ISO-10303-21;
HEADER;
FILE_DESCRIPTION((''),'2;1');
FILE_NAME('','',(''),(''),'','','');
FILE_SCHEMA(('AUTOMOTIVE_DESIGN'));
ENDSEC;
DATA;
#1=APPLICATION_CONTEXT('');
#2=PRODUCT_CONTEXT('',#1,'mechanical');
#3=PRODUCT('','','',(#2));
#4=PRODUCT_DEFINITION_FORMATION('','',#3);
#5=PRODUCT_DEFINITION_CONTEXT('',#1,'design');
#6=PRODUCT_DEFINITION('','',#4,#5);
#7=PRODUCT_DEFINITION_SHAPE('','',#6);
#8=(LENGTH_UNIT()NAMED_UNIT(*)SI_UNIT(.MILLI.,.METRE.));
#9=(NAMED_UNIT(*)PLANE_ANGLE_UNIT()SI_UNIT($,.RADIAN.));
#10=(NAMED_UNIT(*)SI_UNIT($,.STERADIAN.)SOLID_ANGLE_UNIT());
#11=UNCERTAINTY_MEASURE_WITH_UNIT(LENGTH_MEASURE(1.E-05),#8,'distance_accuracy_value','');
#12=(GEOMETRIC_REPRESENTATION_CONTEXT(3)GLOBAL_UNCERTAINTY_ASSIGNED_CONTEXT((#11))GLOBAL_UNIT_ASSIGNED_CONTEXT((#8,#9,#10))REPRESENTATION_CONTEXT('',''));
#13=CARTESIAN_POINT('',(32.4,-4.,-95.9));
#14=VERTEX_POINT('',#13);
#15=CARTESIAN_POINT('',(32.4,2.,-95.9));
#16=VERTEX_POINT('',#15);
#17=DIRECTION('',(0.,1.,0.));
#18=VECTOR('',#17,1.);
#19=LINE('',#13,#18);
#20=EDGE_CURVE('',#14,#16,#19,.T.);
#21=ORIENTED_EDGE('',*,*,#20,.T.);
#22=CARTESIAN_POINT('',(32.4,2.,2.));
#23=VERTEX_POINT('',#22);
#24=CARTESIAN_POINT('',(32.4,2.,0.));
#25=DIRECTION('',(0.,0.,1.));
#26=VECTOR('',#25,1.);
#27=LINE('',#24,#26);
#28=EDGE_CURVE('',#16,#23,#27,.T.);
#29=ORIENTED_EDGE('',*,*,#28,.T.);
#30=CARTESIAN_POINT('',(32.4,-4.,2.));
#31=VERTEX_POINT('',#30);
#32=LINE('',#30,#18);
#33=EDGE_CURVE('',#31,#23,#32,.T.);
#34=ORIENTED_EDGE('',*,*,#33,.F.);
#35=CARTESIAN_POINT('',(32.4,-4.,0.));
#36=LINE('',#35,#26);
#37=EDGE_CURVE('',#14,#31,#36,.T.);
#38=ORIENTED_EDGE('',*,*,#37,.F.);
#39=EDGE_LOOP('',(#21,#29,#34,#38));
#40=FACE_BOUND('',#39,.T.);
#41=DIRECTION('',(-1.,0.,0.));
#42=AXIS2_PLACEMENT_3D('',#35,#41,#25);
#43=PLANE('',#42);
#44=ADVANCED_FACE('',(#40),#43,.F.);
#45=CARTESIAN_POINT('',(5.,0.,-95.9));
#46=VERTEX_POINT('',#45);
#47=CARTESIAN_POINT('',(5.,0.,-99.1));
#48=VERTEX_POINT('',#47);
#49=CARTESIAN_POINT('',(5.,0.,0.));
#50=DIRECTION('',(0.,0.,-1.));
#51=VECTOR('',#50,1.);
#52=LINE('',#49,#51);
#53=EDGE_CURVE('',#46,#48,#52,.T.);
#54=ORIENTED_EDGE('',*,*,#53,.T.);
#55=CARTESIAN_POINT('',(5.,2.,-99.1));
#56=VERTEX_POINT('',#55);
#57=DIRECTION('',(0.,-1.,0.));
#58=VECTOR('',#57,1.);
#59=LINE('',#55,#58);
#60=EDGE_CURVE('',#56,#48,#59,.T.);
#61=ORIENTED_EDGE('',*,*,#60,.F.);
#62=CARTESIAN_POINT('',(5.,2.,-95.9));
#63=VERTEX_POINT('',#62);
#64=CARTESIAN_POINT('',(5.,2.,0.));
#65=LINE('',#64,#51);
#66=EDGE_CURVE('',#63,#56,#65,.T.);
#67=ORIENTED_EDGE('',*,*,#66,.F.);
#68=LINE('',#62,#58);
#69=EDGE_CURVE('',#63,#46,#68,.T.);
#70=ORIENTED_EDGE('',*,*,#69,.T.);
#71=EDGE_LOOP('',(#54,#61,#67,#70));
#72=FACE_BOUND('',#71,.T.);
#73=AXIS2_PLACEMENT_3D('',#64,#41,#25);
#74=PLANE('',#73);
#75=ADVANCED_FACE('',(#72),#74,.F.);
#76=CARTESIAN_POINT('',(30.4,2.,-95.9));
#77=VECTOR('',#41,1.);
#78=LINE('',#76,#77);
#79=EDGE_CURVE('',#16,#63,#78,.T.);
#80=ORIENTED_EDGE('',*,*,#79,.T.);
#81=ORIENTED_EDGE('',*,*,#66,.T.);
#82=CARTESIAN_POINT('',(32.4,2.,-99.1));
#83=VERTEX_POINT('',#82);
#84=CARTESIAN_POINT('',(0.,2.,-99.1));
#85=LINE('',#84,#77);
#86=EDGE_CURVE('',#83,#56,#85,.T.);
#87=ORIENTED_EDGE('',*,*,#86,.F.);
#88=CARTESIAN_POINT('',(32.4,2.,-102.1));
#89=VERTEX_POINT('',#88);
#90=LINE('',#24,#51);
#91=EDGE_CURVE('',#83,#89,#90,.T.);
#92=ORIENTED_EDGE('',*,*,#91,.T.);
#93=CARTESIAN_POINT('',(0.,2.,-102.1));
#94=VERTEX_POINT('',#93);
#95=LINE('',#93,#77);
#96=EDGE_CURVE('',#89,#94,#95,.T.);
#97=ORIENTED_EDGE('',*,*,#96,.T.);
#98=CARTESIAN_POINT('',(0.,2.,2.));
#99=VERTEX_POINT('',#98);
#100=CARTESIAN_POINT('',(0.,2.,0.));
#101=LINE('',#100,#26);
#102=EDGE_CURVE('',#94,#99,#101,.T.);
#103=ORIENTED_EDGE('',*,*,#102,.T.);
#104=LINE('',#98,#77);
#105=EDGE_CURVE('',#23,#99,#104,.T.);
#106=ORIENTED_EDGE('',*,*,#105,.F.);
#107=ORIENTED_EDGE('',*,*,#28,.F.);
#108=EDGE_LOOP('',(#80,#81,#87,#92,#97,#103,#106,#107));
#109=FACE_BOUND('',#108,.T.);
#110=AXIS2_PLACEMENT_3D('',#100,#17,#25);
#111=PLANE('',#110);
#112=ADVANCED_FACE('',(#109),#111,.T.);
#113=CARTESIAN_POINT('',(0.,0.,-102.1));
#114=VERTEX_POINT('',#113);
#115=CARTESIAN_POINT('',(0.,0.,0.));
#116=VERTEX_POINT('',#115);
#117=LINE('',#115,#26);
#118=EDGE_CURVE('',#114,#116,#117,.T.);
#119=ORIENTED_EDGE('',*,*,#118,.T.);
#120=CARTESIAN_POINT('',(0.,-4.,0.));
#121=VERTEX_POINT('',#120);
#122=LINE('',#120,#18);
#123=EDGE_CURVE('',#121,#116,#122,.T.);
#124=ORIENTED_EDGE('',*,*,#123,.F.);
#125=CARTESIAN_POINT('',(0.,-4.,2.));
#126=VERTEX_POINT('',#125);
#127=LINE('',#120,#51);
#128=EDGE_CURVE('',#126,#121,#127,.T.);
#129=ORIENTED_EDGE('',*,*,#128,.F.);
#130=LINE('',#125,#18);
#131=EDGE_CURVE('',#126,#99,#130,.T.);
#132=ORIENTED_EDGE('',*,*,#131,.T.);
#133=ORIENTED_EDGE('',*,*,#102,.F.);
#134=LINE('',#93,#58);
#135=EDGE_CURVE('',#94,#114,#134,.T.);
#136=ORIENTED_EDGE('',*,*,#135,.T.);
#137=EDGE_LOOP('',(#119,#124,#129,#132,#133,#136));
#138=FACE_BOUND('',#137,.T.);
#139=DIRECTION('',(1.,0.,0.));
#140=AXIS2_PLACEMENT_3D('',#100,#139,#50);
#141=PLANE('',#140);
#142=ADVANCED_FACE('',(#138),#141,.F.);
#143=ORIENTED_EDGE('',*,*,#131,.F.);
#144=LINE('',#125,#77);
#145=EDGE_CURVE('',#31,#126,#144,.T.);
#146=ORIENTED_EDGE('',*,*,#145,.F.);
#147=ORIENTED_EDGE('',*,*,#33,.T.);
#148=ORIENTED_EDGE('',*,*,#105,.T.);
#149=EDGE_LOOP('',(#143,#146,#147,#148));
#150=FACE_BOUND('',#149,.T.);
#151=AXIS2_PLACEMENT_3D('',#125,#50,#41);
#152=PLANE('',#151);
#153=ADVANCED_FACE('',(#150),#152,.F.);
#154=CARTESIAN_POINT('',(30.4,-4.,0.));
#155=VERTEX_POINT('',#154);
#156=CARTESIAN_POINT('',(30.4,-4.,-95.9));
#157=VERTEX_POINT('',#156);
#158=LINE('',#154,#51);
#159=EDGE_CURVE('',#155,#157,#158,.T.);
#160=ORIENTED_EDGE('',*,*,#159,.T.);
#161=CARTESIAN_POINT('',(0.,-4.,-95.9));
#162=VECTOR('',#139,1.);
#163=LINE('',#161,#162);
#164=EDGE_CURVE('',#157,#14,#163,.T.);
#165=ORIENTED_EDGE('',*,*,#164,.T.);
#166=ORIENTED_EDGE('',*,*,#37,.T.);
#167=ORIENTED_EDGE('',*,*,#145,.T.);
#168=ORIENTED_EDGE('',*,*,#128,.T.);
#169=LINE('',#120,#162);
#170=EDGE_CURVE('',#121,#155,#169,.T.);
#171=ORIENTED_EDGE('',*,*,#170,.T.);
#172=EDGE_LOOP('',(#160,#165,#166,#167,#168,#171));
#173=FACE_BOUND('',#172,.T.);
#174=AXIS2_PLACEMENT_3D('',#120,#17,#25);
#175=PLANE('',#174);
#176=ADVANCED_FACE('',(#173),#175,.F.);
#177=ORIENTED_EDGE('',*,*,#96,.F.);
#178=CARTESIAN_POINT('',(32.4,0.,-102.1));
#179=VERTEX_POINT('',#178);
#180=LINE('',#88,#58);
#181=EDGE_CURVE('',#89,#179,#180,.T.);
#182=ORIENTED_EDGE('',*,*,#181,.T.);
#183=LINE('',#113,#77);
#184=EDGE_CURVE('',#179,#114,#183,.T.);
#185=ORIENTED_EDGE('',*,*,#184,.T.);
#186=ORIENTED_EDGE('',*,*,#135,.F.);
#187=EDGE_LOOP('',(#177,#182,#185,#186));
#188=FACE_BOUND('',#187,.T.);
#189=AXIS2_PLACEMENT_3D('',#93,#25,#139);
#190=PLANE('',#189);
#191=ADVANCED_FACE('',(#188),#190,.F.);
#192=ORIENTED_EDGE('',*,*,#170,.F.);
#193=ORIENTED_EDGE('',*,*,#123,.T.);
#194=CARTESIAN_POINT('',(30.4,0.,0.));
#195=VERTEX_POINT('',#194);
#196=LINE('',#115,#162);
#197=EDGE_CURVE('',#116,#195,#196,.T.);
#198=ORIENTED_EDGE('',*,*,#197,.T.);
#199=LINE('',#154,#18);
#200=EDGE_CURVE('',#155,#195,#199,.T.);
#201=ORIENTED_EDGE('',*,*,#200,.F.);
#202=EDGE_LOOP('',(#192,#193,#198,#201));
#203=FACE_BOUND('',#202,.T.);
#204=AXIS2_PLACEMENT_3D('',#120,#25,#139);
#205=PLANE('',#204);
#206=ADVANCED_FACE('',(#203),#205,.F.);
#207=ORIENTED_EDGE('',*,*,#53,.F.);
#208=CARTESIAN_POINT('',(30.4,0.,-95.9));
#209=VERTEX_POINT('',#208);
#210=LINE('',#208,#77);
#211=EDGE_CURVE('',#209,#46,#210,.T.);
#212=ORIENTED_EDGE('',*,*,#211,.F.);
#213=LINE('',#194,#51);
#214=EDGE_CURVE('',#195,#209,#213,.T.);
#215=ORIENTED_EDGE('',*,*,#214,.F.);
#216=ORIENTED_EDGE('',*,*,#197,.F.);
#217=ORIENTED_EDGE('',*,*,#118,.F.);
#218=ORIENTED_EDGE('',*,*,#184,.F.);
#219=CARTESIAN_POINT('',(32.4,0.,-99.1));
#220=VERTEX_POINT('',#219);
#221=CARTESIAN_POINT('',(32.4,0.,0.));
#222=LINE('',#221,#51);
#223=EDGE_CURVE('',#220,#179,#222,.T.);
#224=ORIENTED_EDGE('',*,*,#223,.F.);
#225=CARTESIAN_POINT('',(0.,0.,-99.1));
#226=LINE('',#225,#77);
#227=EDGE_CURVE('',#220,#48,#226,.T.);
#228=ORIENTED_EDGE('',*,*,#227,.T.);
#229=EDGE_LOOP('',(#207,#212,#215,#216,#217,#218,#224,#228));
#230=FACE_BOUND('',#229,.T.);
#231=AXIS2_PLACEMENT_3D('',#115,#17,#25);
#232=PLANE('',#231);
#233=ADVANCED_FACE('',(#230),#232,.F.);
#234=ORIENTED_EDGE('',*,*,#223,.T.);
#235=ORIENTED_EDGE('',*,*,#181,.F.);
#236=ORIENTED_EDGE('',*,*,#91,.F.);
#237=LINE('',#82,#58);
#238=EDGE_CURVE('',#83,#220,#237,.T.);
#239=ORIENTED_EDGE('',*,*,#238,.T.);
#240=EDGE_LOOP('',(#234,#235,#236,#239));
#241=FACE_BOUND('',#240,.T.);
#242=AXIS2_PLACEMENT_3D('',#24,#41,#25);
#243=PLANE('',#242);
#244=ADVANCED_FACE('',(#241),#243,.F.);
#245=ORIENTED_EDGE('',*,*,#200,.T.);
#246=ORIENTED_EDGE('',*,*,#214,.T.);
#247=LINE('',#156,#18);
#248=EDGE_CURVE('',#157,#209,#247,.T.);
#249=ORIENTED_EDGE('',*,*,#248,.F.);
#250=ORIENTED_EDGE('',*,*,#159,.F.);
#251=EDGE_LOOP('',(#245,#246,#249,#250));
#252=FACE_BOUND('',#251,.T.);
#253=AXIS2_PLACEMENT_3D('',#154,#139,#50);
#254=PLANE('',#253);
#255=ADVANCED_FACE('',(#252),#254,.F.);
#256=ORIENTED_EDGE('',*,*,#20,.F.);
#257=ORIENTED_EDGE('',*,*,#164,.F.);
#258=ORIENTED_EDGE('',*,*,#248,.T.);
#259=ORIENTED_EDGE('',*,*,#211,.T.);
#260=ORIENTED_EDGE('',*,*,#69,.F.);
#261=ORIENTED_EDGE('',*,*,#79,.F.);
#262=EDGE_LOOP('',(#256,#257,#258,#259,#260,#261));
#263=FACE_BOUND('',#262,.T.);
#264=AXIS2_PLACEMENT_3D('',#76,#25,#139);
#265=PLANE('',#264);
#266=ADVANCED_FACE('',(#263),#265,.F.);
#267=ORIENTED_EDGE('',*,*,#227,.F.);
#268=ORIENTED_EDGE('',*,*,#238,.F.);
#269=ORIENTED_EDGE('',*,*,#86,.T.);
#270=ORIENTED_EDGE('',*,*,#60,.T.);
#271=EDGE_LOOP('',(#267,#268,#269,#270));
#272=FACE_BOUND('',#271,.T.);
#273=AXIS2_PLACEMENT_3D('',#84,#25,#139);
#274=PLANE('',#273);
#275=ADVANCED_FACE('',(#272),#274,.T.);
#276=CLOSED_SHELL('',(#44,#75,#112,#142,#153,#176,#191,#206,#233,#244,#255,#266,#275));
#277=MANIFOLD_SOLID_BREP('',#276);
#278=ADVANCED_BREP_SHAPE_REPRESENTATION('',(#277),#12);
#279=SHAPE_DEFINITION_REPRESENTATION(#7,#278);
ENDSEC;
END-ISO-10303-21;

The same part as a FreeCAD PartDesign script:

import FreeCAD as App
import Part
import Sketcher
Q = App.Units.Quantity


def add_polygon(sketch, points):
    """Adds a closed chain of lines whose ends are joined by coincident constraints."""
    first, n = sketch.GeometryCount, len(points)
    for a, b in zip(points, points[1:] + points[:1]):
        sketch.addGeometry(Part.LineSegment(App.Vector(*a, 0), App.Vector(*b, 0)), False)
    for i in range(n):
        sketch.addConstraint(Sketcher.Constraint("Coincident", first + i, 2, first + (i + 1) % n, 1))

doc = App.newDocument("Part")
body = doc.addObject("PartDesign::Body", "Body")

sketch1 = doc.addObject("Sketcher::SketchObject", "Sketch")
body.addObject(sketch1)
sketch1.AttachmentSupport = (doc.XZ_Plane, [""])
sketch1.MapMode = "FlatFace"
add_polygon(sketch1, [(0, 0), (30, 0), (30, -96), (18, -96), (18, -16), (0, -16)])
sketch1.addConstraint([
    Sketcher.Constraint("Horizontal", 0),
    Sketcher.Constraint("Vertical", 1),
    Sketcher.Constraint("Horizontal", 2),
    Sketcher.Constraint("Vertical", 3),
    Sketcher.Constraint("Horizontal", 4),
    Sketcher.Constraint("Vertical", 5),
    Sketcher.Constraint("Coincident", 5, 2, -1, 1),
    Sketcher.Constraint("DistanceX", 0, 1, 0, 2, Q("30.4 mm")),
    Sketcher.Constraint("DistanceX", 2, 2, 2, 1, Q("12.2 mm")),
    Sketcher.Constraint("DistanceY", 1, 2, 1, 1, Q("95.9 mm")),
    Sketcher.Constraint("DistanceY", 3, 1, 3, 2, Q("80.2 mm")),
])
pad1 = doc.addObject("PartDesign::Pad", "Pad")
body.addObject(pad1)
pad1.Profile = sketch1
pad1.Length = 2
pad1.Reversed = True

sketch2 = doc.addObject("Sketcher::SketchObject", "Sketch001")
body.addObject(sketch2)
sketch2.AttachmentSupport = (doc.XZ_Plane, [""])
sketch2.MapMode = "FlatFace"
sketch2.AttachmentOffset = App.Placement(App.Vector(0, 0, -2), App.Rotation())
add_polygon(sketch2, [(0, 0), (0, 2), (32.4, 2), (32.4, -95.9), (30.4, -95.9), (30.4, 0)])
sketch2.addConstraint([
    Sketcher.Constraint("Vertical", 0),
    Sketcher.Constraint("Horizontal", 1),
    Sketcher.Constraint("Vertical", 2),
    Sketcher.Constraint("Horizontal", 3),
    Sketcher.Constraint("Vertical", 4),
    Sketcher.Constraint("Horizontal", 5),
    Sketcher.Constraint("Coincident", 5, 2, -1, 1),
    Sketcher.Constraint("Equal", 3, 0),
    Sketcher.Constraint("DistanceX", 3, 2, 3, 1, Q("2 mm")),
    Sketcher.Constraint("DistanceX", 1, 1, 1, 2, Q("32.4 mm")),
    Sketcher.Constraint("DistanceY", 2, 2, 2, 1, Q("97.9 mm")),
])
pad2 = doc.addObject("PartDesign::Pad", "Pad001")
body.addObject(pad2)
pad2.Profile = sketch2
pad2.Length = 6

sketch3 = doc.addObject("Sketcher::SketchObject", "Sketch002")
body.addObject(sketch3)
sketch3.AttachmentSupport = (doc.YZ_Plane, [""])
sketch3.MapMode = "FlatFace"
sketch3.AttachmentOffset = App.Placement(App.Vector(0, 0, 18.2), App.Rotation())
add_polygon(sketch3, [(2, -95.9), (0, -95.9), (0, -15.7), (2, -15.7)])
sketch3.addConstraint([
    Sketcher.Constraint("Horizontal", 0),
    Sketcher.Constraint("Vertical", 1),
    Sketcher.Constraint("Horizontal", 2),
    Sketcher.Constraint("Vertical", 3),
    Sketcher.Constraint("PointOnObject", 0, 2, -2),
    Sketcher.Constraint("DistanceX", 0, 2, 0, 1, Q("2 mm")),
    Sketcher.Constraint("DistanceY", 1, 1, 1, 2, Q("80.2 mm")),
    Sketcher.Constraint("DistanceY", 0, 2, -1, 1, Q("95.9 mm")),
])
pad3 = doc.addObject("PartDesign::Pad", "Pad002")
body.addObject(pad3)
pad3.Profile = sketch3
pad3.Length = 18.2
pad3.Reversed = True

sketch4 = doc.addObject("Sketcher::SketchObject", "Sketch003")
body.addObject(sketch4)
sketch4.AttachmentSupport = (doc.XZ_Plane, [""])
sketch4.MapMode = "FlatFace"
add_polygon(sketch4, [(5, -95.9), (0, -95.9), (0, -102.1), (32.4, -102.1), (32.4, -99.1), (5, -99.1)])
sketch4.addConstraint([
    Sketcher.Constraint("Horizontal", 0),
    Sketcher.Constraint("Vertical", 1),
    Sketcher.Constraint("Horizontal", 2),
    Sketcher.Constraint("Vertical", 3),
    Sketcher.Constraint("Horizontal", 4),
    Sketcher.Constraint("Vertical", 5),
    Sketcher.Constraint("PointOnObject", 0, 2, -2),
    Sketcher.Constraint("DistanceX", 0, 2, 0, 1, Q("5 mm")),
    Sketcher.Constraint("DistanceY", 3, 1, 3, 2, Q("3 mm")),
    Sketcher.Constraint("DistanceX", 2, 1, 2, 2, Q("32.4 mm")),
    Sketcher.Constraint("DistanceY", 1, 2, 1, 1, Q("6.2 mm")),
    Sketcher.Constraint("DistanceY", 0, 2, -1, 1, Q("95.9 mm")),
])
pad4 = doc.addObject("PartDesign::Pad", "Pad003")
body.addObject(pad4)
pad4.Profile = sketch4
pad4.Length = 2
pad4.Reversed = True

doc.recompute()
